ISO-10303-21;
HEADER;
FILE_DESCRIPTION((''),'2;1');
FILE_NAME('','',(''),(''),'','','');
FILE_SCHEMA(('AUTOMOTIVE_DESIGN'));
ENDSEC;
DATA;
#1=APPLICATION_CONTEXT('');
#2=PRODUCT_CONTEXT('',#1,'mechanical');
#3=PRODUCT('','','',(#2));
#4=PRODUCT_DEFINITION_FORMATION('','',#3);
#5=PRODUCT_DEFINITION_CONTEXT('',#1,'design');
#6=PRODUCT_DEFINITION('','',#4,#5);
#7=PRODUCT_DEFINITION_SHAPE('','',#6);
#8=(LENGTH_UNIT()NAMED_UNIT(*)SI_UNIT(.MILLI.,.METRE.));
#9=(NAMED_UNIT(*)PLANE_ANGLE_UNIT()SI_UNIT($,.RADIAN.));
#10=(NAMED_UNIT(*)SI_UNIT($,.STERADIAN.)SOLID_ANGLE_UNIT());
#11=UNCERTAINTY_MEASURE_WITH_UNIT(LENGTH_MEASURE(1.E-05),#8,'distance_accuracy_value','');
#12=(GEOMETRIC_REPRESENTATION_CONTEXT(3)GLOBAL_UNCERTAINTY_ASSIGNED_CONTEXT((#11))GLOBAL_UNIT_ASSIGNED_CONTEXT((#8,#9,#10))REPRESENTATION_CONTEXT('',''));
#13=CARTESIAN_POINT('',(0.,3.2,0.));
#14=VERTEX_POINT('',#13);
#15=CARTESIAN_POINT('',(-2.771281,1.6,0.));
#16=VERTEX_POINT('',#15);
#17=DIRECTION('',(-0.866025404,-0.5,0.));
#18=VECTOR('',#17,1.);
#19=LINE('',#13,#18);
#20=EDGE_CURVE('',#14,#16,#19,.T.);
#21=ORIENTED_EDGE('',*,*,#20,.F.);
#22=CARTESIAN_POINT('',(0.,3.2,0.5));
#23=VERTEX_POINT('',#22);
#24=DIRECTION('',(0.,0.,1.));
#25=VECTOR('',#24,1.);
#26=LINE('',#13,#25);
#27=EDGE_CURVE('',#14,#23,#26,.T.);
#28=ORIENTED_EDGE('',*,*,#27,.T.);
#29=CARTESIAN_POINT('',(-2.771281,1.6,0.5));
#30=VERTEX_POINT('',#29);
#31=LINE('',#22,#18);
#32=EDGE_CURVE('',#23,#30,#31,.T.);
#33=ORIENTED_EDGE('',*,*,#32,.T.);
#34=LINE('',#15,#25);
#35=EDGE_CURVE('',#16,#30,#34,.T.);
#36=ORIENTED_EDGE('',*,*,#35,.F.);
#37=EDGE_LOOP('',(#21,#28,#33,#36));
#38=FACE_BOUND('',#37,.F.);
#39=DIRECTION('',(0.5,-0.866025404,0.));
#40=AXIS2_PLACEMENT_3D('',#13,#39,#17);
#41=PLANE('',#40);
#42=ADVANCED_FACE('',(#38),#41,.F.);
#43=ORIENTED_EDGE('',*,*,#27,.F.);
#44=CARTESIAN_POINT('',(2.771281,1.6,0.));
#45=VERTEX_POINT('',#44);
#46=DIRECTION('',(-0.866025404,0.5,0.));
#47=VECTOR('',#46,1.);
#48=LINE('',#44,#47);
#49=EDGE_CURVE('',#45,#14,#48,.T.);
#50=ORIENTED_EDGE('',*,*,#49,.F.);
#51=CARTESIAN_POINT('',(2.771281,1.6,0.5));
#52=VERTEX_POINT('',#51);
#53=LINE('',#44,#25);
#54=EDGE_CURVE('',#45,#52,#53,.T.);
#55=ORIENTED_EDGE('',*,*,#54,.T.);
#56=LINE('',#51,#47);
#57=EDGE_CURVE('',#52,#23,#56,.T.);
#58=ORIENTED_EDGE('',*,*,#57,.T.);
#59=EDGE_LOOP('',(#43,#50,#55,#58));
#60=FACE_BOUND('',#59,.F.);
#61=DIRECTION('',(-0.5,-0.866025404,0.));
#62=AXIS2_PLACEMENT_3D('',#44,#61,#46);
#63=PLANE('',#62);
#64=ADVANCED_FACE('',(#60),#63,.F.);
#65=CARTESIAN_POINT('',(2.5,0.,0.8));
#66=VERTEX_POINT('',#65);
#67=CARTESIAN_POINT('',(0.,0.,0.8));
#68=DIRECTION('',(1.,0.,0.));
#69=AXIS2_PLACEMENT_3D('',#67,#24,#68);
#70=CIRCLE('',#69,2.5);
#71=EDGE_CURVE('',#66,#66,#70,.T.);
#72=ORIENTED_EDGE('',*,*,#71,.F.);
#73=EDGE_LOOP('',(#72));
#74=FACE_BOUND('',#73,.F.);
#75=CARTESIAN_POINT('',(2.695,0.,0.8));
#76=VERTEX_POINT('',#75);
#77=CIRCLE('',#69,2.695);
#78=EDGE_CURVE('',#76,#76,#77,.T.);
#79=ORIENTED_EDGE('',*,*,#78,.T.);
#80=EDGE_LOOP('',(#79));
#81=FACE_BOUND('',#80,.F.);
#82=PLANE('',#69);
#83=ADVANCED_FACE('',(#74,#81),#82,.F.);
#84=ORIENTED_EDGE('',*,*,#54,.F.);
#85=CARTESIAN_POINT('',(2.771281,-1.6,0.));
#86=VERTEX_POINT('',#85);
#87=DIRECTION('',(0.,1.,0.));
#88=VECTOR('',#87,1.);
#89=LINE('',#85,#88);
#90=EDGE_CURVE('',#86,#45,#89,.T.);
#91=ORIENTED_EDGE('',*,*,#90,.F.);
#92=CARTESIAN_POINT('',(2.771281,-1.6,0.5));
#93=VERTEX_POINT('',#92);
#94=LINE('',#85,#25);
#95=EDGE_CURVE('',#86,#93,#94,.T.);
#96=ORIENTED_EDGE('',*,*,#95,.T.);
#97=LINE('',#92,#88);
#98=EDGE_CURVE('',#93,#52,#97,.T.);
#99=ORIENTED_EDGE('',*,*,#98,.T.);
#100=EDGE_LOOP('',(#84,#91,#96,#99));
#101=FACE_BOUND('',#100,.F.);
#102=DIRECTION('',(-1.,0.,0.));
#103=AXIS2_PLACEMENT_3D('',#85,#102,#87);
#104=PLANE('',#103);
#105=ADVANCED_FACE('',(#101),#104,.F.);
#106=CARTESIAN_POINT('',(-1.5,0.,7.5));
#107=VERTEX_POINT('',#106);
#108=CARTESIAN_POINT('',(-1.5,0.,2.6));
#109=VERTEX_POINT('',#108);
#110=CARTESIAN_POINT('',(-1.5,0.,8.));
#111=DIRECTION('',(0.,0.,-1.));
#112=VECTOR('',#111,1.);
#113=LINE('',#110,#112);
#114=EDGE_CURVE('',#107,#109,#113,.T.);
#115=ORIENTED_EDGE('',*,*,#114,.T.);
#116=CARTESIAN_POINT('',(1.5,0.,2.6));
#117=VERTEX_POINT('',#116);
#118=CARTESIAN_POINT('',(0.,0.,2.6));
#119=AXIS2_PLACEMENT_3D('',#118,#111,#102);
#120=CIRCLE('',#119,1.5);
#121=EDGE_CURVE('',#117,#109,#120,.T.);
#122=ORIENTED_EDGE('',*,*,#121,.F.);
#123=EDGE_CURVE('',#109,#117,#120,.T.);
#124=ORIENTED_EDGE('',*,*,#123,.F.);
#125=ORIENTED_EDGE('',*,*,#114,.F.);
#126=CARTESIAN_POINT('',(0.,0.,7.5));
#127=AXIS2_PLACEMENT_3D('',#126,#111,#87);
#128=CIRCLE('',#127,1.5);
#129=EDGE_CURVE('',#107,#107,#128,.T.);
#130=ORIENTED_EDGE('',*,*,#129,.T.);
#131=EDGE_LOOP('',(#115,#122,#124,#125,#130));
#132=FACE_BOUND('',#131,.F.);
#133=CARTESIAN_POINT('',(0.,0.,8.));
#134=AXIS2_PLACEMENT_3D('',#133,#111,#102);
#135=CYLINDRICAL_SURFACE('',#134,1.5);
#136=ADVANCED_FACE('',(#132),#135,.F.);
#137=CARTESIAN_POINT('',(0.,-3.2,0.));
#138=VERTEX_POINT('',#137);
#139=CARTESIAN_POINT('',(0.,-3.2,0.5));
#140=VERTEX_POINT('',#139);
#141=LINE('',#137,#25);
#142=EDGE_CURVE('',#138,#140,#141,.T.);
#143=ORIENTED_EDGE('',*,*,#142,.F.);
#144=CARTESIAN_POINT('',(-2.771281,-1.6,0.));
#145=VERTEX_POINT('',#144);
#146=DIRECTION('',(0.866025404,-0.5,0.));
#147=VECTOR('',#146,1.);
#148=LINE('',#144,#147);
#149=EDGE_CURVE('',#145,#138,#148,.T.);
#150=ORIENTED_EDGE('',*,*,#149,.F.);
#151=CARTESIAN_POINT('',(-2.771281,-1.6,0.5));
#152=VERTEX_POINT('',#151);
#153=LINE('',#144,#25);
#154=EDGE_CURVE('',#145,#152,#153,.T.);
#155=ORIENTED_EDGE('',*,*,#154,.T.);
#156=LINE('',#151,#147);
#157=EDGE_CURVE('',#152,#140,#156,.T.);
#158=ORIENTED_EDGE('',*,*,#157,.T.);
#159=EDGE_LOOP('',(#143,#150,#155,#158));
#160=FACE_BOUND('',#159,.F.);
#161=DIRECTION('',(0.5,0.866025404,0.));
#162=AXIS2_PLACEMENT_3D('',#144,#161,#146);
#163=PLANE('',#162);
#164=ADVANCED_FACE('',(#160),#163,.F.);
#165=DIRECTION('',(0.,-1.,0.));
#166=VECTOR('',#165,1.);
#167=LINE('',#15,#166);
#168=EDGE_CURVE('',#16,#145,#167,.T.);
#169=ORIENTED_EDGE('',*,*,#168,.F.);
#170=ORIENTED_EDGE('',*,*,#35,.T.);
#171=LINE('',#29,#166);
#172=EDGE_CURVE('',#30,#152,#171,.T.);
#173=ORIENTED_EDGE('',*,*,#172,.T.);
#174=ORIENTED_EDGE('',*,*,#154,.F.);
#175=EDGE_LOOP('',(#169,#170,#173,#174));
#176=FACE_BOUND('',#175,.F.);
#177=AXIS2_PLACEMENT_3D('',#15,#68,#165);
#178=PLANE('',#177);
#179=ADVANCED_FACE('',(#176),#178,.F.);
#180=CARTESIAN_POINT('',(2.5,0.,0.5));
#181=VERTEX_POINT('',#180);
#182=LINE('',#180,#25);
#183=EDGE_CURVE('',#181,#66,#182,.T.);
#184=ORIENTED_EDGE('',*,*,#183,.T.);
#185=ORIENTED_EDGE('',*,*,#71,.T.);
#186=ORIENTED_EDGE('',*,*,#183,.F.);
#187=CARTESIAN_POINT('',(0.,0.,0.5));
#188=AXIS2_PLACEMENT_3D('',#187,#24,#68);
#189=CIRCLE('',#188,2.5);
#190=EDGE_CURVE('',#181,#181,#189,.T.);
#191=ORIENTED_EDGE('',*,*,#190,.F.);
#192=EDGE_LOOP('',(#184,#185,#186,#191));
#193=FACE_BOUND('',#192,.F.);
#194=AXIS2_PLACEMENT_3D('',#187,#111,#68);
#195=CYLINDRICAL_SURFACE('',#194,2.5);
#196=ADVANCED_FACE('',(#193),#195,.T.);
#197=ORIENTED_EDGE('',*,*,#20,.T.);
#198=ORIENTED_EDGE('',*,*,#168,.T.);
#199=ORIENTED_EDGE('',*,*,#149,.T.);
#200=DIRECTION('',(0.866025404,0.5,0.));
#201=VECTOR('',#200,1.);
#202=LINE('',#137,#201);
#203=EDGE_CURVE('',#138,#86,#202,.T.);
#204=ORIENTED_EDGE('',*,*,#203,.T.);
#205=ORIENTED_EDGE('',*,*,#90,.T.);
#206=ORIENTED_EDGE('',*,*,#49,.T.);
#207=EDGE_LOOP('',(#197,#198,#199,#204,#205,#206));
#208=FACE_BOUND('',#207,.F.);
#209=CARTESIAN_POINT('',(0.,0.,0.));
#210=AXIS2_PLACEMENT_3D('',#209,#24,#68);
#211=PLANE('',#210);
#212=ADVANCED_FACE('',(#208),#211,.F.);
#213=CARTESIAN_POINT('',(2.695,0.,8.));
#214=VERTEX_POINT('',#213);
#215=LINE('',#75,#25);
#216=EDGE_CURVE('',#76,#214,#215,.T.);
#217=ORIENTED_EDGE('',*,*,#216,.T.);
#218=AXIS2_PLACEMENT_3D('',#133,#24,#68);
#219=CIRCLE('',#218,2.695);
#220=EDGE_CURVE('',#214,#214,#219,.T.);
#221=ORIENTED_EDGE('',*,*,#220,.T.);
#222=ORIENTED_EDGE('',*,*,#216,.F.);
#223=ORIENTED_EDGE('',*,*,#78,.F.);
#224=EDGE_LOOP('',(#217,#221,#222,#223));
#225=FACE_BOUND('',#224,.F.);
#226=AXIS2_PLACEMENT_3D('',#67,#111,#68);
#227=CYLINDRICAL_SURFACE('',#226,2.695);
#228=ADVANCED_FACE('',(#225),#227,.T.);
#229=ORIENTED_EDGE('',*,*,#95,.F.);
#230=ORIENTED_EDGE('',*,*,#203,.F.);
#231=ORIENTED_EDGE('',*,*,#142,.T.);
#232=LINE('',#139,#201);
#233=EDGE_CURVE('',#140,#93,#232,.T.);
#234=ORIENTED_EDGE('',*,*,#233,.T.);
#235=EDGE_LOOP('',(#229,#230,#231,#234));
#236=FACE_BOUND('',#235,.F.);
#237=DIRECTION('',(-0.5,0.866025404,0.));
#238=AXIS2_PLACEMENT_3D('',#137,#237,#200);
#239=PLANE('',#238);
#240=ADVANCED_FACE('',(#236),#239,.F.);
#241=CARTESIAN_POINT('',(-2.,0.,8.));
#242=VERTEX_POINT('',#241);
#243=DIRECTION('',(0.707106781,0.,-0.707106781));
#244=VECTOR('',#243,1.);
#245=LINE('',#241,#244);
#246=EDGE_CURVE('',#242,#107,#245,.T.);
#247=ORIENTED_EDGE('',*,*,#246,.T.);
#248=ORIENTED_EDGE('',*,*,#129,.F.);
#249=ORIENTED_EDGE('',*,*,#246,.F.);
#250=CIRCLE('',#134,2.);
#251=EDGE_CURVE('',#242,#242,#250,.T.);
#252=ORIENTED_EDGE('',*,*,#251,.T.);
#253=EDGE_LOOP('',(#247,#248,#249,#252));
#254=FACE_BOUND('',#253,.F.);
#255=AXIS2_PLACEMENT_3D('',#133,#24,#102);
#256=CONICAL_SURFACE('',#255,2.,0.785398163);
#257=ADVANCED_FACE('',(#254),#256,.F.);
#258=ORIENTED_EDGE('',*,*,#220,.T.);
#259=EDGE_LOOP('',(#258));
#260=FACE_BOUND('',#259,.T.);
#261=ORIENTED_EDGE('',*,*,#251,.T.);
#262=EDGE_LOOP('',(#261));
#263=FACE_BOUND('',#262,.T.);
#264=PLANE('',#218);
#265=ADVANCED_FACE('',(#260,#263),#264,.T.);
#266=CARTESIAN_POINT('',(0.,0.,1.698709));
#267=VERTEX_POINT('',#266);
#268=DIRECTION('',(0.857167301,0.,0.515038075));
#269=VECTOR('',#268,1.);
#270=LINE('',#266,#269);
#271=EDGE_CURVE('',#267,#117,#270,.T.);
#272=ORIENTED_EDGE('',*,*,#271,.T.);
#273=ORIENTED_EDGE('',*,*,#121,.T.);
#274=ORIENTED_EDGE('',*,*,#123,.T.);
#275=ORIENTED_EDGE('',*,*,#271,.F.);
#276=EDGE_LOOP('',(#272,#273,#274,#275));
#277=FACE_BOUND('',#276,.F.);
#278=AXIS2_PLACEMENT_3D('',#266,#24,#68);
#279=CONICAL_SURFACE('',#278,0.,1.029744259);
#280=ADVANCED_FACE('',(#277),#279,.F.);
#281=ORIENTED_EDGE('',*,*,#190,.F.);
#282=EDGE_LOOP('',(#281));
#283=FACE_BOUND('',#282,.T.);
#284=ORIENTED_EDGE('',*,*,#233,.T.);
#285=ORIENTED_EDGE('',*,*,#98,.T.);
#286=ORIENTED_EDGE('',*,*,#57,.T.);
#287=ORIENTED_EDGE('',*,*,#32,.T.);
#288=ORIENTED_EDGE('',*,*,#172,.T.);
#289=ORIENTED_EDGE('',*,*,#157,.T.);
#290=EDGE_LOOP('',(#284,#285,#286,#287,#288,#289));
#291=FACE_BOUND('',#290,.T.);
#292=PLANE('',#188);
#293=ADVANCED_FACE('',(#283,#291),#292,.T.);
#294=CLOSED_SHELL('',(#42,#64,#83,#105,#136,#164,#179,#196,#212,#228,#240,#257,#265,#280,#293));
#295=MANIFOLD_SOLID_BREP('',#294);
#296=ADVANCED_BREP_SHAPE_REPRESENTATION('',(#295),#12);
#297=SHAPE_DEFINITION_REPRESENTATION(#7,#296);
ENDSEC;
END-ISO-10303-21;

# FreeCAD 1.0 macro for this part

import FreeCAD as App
import Part
import Sketcher
from FreeCAD import Vector
Q = App.Units.Quantity


def add_polygon(sketch, points):
    """Adds a closed chain of lines whose ends are joined by coincident constraints."""
    first, n = sketch.GeometryCount, len(points)
    for a, b in zip(points, points[1:] + points[:1]):
        sketch.addGeometry(Part.LineSegment(App.Vector(*a, 0), App.Vector(*b, 0)), False)
    for i in range(n):
        sketch.addConstraint(Sketcher.Constraint("Coincident", first + i, 2, first + (i + 1) % n, 1))

doc = App.newDocument("Part")
body = doc.addObject("PartDesign::Body", "Body")

# Sketch on XY plane
sketch1 = doc.addObject("Sketcher::SketchObject", "Sketch")
body.addObject(sketch1)
sketch1.AttachmentSupport = (doc.XY_Plane, [""])
sketch1.MapMode = "FlatFace"
add_polygon(sketch1, [(-2.8, -1.6), (0, -3.2), (2.8, -1.6), (2.8, 1.6), (0, 3.2), (-2.8, 1.6)])  # lines 0-5
sketch1.addConstraint(Sketcher.Constraint("Vertical", 2))
sketch1.addConstraint(Sketcher.Constraint("Vertical", 5))
sketch1.addConstraint(Sketcher.Constraint("Symmetric", 0, 2, 3, 2, -1, 1))
sketch1.addConstraint(Sketcher.Constraint("Symmetric", 1, 2, 4, 2, -1, 1))
sketch1.addConstraint(Sketcher.Constraint("PointOnObject", 0, 2, -2))
sketch1.addConstraint(Sketcher.Constraint("Parallel", 0, 3))
sketch1.addConstraint(Sketcher.Constraint("Horizontal", 2, 2, 4, 2))
sketch1.addConstraint(Sketcher.Constraint("Angle", 0, Q("-30 deg")))
sketch1.addConstraint(Sketcher.Constraint("DistanceY", 2, 1, 2, 2, Q("3.2 mm")))
sketch1.addConstraint(Sketcher.Constraint("Distance", 0, Q("3.2 mm")))
pad1 = doc.addObject("PartDesign::Pad", "Pad")
body.addObject(pad1)
pad1.Profile = sketch1
pad1.Length = 0.5

# Sketch on XY plane
sketch2 = doc.addObject("Sketcher::SketchObject", "Sketch001")
body.addObject(sketch2)
sketch2.AttachmentSupport = (doc.XY_Plane, [""])
sketch2.MapMode = "FlatFace"
sketch2.AttachmentOffset = App.Placement(Vector(0, 0, 0.5), App.Rotation())
sketch2.addGeometry(Part.Circle(Vector(0, 0, 0), Vector(0, 0, 1), 2.5), False)
sketch2.addConstraint(Sketcher.Constraint("Coincident", 0, 3, -1, 1))
sketch2.addConstraint(Sketcher.Constraint("Diameter", 0, Q("5 mm")))
pad2 = doc.addObject("PartDesign::Pad", "Pad001")
body.addObject(pad2)
pad2.Profile = sketch2
pad2.Length = 0.3

# Sketch on XY plane
sketch3 = doc.addObject("Sketcher::SketchObject", "Sketch002")
body.addObject(sketch3)
sketch3.AttachmentSupport = (doc.XY_Plane, [""])
sketch3.MapMode = "FlatFace"
sketch3.AttachmentOffset = App.Placement(Vector(0, 0, 0.8), App.Rotation())
sketch3.addGeometry(Part.Circle(Vector(0, 0, 0), Vector(0, 0, 1), 2.7), False)
sketch3.addConstraint(Sketcher.Constraint("Coincident", 0, 3, -1, 1))
sketch3.addConstraint(Sketcher.Constraint("Diameter", 0, Q("5.39 mm")))
pad3 = doc.addObject("PartDesign::Pad", "Pad002")
body.addObject(pad3)
pad3.Profile = sketch3
pad3.Length = 7.2

# Sketch on XY plane
sketch4 = doc.addObject("Sketcher::SketchObject", "Sketch003")
body.addObject(sketch4)
sketch4.AttachmentSupport = (doc.XY_Plane, [""])
sketch4.MapMode = "FlatFace"
sketch4.AttachmentOffset = App.Placement(Vector(0, 0, 8), App.Rotation())
sketch4.addGeometry(Part.Circle(Vector(0, 0, 0), Vector(0, 0, 1), 1.5), False)
sketch4.addConstraint(Sketcher.Constraint("Coincident", 0, 3, -1, 1))
sketch4.addConstraint(Sketcher.Constraint("Diameter", 0, Q("3 mm")))
doc.recompute()
hole = doc.addObject("PartDesign::Hole", "Hole")
body.addObject(hole)
hole.Profile = sketch4
hole.ThreadType = "None"
hole.Diameter = 3
hole.DepthType = "Dimension"
hole.Depth = 5.4
hole.DrillPoint = "Angled"
hole.DrillPointAngle = 118
hole.HoleCutType = "Countersink"
hole.HoleCutDiameter = 4
hole.HoleCutCountersinkAngle = 90

doc.recompute()
